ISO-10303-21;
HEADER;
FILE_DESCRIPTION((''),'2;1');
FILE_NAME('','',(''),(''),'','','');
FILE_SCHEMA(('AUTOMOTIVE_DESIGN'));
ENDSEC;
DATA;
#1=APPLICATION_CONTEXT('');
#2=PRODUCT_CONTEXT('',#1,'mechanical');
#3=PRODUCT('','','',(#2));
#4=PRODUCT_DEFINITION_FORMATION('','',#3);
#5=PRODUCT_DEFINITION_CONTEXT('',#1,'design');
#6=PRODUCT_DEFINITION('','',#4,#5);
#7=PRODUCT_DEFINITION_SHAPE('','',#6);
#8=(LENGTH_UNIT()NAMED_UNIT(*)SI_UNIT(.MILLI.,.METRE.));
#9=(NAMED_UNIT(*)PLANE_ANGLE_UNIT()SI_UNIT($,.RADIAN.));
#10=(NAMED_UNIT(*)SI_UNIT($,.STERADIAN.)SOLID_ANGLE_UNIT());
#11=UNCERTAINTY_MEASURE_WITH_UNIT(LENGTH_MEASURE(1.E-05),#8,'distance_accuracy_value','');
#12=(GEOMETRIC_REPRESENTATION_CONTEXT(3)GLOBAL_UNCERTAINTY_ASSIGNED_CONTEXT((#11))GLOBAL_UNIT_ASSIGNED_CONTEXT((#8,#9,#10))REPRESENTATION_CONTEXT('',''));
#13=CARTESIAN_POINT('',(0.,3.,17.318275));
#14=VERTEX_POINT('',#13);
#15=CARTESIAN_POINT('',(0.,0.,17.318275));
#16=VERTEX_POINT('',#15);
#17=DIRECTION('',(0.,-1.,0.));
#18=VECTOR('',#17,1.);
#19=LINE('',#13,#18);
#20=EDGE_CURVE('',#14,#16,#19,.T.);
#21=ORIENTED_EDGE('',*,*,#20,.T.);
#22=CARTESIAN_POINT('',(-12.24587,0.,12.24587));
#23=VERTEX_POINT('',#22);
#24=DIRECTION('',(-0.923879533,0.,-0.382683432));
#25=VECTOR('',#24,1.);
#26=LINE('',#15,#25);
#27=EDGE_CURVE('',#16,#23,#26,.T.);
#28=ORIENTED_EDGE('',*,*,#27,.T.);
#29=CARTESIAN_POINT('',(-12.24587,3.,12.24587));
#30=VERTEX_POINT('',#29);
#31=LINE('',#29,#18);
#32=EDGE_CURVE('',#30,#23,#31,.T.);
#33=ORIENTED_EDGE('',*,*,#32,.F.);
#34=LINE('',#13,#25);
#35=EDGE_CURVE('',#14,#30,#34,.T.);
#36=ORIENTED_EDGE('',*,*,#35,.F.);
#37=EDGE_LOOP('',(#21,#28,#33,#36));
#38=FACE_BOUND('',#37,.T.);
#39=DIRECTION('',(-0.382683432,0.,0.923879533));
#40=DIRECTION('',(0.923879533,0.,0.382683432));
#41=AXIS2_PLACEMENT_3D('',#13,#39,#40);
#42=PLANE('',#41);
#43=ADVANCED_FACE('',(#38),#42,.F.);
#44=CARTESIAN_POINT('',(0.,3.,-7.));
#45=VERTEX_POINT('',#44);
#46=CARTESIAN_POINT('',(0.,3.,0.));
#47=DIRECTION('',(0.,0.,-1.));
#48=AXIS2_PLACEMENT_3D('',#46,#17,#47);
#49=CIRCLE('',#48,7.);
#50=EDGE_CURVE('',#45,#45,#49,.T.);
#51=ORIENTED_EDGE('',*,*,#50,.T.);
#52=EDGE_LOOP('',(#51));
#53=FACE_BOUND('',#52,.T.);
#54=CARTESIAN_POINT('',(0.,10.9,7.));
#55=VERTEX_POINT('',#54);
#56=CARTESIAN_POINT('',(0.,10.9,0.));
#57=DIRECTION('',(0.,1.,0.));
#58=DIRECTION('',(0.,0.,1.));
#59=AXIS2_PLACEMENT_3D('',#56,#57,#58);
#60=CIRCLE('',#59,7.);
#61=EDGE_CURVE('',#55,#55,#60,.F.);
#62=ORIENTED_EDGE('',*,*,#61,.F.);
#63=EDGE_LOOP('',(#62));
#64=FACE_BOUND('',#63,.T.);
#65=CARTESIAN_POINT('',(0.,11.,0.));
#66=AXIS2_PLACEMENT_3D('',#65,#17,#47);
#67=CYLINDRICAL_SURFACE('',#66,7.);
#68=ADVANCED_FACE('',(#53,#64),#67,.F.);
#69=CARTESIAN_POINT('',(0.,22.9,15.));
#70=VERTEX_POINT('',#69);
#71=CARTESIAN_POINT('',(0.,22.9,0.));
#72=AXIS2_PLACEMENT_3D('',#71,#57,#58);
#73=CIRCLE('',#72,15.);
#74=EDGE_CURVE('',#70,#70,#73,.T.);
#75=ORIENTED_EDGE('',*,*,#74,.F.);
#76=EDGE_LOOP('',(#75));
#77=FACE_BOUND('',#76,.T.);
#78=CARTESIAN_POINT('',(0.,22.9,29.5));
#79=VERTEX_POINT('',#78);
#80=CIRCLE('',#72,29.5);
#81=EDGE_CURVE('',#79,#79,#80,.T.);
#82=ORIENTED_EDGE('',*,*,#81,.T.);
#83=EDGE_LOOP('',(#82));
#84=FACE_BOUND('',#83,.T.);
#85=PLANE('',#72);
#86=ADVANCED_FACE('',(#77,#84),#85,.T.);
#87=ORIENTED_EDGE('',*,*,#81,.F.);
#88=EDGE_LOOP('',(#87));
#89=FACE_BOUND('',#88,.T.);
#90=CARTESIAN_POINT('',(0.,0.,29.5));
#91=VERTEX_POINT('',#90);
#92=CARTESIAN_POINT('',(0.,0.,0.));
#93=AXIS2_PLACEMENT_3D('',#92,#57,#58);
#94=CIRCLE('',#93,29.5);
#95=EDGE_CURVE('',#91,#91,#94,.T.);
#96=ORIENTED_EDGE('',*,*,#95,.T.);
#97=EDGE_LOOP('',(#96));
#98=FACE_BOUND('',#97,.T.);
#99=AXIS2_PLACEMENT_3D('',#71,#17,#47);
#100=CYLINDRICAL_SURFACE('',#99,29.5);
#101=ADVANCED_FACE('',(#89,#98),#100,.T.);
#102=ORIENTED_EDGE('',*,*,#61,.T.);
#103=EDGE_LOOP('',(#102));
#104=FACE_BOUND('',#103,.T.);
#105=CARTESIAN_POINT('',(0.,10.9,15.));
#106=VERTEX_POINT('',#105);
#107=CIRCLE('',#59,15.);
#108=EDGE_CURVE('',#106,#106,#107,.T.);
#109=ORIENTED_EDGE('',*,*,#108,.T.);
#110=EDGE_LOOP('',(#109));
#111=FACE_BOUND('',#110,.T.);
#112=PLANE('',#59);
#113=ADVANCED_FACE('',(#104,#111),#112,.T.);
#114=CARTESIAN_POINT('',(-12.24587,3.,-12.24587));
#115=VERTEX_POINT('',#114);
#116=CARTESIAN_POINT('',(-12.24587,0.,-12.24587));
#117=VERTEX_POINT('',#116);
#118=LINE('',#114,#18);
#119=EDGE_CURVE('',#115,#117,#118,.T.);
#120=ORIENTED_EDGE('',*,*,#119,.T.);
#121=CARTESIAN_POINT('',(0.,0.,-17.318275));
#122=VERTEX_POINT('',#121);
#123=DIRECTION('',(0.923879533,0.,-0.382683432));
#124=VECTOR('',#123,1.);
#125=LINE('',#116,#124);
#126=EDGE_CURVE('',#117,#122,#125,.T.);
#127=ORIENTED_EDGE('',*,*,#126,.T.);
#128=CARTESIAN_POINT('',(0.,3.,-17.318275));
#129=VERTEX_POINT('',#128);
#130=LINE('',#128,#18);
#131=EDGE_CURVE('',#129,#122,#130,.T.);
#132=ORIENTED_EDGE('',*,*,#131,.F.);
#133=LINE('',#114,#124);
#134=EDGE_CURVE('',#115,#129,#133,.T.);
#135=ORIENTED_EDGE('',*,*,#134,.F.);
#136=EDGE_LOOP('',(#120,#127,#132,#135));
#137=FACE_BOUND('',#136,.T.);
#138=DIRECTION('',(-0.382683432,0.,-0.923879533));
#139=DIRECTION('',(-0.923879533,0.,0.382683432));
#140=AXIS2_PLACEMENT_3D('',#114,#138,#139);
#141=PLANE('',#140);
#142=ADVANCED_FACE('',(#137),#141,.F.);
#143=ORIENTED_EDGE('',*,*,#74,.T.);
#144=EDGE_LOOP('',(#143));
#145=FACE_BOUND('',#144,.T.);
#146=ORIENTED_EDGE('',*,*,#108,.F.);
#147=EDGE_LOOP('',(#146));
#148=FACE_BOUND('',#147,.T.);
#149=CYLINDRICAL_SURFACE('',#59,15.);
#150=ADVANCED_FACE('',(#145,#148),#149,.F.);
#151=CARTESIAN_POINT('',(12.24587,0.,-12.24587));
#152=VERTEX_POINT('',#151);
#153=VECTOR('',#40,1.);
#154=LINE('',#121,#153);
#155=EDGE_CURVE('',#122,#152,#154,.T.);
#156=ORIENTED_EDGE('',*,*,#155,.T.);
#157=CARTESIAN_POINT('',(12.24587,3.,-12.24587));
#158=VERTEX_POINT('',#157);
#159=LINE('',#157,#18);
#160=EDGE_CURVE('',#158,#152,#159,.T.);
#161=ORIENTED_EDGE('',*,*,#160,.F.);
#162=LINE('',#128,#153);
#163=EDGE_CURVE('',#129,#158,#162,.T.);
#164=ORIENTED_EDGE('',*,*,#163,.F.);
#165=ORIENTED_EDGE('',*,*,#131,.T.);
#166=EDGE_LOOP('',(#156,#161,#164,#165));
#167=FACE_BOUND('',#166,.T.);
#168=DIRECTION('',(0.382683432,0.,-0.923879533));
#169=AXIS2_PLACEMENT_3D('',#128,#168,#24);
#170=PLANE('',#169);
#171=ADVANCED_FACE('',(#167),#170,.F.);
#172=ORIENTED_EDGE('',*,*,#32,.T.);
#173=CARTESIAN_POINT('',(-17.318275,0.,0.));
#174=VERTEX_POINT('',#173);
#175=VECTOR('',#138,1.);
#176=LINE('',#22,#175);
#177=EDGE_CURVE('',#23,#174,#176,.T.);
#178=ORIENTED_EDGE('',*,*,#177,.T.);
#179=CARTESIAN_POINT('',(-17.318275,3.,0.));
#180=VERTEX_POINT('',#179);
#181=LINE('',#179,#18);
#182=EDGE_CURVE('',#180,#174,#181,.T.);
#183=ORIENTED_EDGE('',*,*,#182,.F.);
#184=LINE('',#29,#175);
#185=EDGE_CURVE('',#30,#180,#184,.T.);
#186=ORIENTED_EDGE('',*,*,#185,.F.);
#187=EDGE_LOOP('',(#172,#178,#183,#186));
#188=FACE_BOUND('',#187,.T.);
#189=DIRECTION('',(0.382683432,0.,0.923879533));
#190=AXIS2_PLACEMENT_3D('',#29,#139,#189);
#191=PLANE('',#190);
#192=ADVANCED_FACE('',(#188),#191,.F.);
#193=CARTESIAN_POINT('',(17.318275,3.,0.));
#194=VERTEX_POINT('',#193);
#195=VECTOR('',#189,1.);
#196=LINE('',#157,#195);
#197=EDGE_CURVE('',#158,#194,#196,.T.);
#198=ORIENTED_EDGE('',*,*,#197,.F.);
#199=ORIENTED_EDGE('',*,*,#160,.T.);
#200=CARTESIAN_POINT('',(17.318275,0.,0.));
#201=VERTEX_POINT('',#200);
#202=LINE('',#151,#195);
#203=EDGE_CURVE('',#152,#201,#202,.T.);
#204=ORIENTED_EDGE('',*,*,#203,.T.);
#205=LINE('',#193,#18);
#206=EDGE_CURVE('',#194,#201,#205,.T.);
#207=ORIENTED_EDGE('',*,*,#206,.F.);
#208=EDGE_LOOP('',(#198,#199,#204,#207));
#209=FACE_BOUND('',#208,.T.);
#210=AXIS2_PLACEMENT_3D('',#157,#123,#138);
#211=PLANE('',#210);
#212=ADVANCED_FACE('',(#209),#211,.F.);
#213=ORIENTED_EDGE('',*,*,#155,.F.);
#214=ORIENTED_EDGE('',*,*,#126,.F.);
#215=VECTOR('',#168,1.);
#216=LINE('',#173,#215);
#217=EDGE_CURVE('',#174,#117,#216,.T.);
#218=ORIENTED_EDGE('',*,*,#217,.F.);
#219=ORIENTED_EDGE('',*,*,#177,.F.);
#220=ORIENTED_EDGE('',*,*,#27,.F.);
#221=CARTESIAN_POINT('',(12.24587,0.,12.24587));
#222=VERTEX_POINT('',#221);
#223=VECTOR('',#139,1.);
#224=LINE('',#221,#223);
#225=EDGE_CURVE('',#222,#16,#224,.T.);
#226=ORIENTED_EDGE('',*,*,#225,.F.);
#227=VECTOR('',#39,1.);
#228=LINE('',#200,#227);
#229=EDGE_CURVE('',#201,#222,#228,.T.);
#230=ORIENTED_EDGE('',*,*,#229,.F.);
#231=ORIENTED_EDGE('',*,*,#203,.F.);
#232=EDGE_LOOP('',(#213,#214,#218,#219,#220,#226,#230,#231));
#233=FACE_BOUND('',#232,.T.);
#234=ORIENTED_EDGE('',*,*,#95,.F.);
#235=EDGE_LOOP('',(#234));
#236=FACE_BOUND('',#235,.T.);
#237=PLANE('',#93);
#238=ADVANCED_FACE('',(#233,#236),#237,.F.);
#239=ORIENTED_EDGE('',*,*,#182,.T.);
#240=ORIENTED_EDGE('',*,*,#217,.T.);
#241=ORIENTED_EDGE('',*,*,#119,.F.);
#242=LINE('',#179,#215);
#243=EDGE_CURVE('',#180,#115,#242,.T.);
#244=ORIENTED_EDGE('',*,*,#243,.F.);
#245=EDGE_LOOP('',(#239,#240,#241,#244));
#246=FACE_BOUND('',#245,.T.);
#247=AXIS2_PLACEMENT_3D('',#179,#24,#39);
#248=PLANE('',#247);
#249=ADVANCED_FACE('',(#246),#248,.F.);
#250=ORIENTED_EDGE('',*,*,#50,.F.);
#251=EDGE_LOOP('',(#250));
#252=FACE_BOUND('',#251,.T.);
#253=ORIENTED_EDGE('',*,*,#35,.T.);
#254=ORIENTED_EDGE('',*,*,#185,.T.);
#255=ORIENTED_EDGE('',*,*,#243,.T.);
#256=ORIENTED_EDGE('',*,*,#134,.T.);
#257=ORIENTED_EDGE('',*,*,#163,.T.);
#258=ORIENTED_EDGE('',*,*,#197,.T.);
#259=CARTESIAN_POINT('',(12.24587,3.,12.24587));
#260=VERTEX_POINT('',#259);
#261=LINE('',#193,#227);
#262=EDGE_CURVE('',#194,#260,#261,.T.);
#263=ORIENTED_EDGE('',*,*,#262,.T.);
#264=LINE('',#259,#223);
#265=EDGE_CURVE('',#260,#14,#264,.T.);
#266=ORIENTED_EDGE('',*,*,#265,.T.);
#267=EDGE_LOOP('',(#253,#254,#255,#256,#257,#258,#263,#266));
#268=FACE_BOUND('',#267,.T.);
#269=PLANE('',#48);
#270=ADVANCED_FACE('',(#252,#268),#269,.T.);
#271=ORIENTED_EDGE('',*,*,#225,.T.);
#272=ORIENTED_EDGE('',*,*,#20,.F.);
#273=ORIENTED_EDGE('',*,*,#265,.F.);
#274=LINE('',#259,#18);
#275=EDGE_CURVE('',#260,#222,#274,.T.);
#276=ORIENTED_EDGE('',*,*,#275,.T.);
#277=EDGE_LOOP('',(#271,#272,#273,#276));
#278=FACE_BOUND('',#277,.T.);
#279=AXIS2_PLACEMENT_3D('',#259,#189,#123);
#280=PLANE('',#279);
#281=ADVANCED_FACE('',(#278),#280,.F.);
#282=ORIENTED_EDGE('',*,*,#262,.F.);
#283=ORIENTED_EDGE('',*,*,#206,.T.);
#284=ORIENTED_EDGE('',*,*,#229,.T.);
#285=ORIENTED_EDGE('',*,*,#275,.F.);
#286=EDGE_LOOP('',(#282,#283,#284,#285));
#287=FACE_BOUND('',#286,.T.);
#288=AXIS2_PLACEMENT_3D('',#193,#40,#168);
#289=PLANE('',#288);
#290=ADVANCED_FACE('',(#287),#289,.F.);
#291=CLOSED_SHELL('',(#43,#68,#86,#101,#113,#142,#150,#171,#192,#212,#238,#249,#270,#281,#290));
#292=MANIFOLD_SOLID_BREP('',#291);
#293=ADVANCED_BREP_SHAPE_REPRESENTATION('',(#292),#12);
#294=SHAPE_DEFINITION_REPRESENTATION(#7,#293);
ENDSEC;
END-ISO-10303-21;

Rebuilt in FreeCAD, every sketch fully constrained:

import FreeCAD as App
import Part
import Sketcher
from FreeCAD import Vector
Q = App.Units.Quantity

doc = App.newDocument("Part")
body = doc.addObject("PartDesign::Body", "Body")

sketch1 = body.newObject("Sketcher::SketchObject", "Sketch")
sketch1.AttachmentSupport = (doc.getObject("XZ_Plane"), [""])
sketch1.MapMode = "FlatFace"
sketch1.addGeometry(Part.Circle(Vector(0, 0, 0), Vector(0, 0, 1), 30), False)
sketch1.addConstraint([
    Sketcher.Constraint("Coincident", 0, 3, -1, 1),
    Sketcher.Constraint("Diameter", 0, 59.0),
])
pad1 = body.newObject("PartDesign::Pad", "Pad")
pad1.Profile = sketch1
pad1.Length = 22.9
pad1.Reversed = True

sketch2 = body.newObject("Sketcher::SketchObject", "Sketch001")
sketch2.AttachmentSupport = (doc.getObject("XZ_Plane"), [""])
sketch2.MapMode = "FlatFace"
sketch2.addGeometry([
    Part.LineSegment(Vector(12, 12, 0), Vector(0, 17, 0)),
    Part.LineSegment(Vector(0, 17, 0), Vector(-12, 12, 0)),
    Part.LineSegment(Vector(-12, 12, 0), Vector(-17, 0, 0)),
    Part.LineSegment(Vector(-17, 0, 0), Vector(-12, -12, 0)),
    Part.LineSegment(Vector(-12, -12, 0), Vector(0, -17, 0)),
    Part.LineSegment(Vector(0, -17, 0), Vector(12, -12, 0)),
    Part.LineSegment(Vector(12, -12, 0), Vector(17, 0, 0)),
    Part.LineSegment(Vector(17, 0, 0), Vector(12, 12, 0)),
], False)
sketch2.addConstraint([
    Sketcher.Constraint("Coincident", 0, 2, 1, 1),
    Sketcher.Constraint("Coincident", 1, 2, 2, 1),
    Sketcher.Constraint("Coincident", 2, 2, 3, 1),
    Sketcher.Constraint("Coincident", 3, 2, 4, 1),
    Sketcher.Constraint("Coincident", 4, 2, 5, 1),
    Sketcher.Constraint("Coincident", 5, 2, 6, 1),
    Sketcher.Constraint("Coincident", 6, 2, 7, 1),
    Sketcher.Constraint("Coincident", 7, 2, 0, 1),
    Sketcher.Constraint("Symmetric", 0, 2, 4, 2, -1, 1),
    Sketcher.Constraint("Symmetric", 1, 2, 5, 2, -1, 1),
    Sketcher.Constraint("Symmetric", 2, 2, 6, 2, -1, 1),
    Sketcher.Constraint("Symmetric", 3, 2, 7, 2, -1, 1),
    Sketcher.Constraint("Symmetric", 3, 2, 5, 2, -2),
    Sketcher.Constraint("PointOnObject", 0, 2, -2),
    Sketcher.Constraint("PointOnObject", 2, 2, -1),
    Sketcher.Constraint("Perpendicular", 0, 2),
    Sketcher.Constraint("Equal", 1, 2),
    Sketcher.Constraint("Angle", 0, Q("157.5 deg")),
    Sketcher.Constraint("DistanceX", 1, 2, -1, 1, 12.24587),
])
pocket1 = body.newObject("PartDesign::Pocket", "Pocket")
pocket1.Profile = sketch2
pocket1.Length = 3

sketch3 = body.newObject("Sketcher::SketchObject", "Sketch002")
sketch3.AttachmentSupport = (doc.getObject("XZ_Plane"), [""])
sketch3.MapMode = "FlatFace"
sketch3.AttachmentOffset = App.Placement(Vector(0, 0, -3), App.Rotation())
sketch3.addGeometry(Part.Circle(Vector(0, 0, 0), Vector(0, 0, 1), 7), False)
sketch3.addConstraint([
    Sketcher.Constraint("Coincident", 0, 3, -1, 1),
    Sketcher.Constraint("Diameter", 0, 14.0),
])
pocket2 = body.newObject("PartDesign::Pocket", "Pocket001")
pocket2.Profile = sketch3
pocket2.Length = 8

sketch4 = body.newObject("Sketcher::SketchObject", "Sketch003")
sketch4.AttachmentSupport = (doc.getObject("XZ_Plane"), [""])
sketch4.MapMode = "FlatFace"
sketch4.AttachmentOffset = App.Placement(Vector(0, 0, -22.9), App.Rotation())
sketch4.addGeometry(Part.Circle(Vector(0, 0, 0), Vector(0, 0, 1), 15), False)
sketch4.addConstraint([
    Sketcher.Constraint("Coincident", 0, 3, -1, 1),
    Sketcher.Constraint("Diameter", 0, 30.0),
])
pocket3 = body.newObject("PartDesign::Pocket", "Pocket002")
pocket3.Profile = sketch4
pocket3.Length = 12
pocket3.Reversed = True

doc.recompute()
